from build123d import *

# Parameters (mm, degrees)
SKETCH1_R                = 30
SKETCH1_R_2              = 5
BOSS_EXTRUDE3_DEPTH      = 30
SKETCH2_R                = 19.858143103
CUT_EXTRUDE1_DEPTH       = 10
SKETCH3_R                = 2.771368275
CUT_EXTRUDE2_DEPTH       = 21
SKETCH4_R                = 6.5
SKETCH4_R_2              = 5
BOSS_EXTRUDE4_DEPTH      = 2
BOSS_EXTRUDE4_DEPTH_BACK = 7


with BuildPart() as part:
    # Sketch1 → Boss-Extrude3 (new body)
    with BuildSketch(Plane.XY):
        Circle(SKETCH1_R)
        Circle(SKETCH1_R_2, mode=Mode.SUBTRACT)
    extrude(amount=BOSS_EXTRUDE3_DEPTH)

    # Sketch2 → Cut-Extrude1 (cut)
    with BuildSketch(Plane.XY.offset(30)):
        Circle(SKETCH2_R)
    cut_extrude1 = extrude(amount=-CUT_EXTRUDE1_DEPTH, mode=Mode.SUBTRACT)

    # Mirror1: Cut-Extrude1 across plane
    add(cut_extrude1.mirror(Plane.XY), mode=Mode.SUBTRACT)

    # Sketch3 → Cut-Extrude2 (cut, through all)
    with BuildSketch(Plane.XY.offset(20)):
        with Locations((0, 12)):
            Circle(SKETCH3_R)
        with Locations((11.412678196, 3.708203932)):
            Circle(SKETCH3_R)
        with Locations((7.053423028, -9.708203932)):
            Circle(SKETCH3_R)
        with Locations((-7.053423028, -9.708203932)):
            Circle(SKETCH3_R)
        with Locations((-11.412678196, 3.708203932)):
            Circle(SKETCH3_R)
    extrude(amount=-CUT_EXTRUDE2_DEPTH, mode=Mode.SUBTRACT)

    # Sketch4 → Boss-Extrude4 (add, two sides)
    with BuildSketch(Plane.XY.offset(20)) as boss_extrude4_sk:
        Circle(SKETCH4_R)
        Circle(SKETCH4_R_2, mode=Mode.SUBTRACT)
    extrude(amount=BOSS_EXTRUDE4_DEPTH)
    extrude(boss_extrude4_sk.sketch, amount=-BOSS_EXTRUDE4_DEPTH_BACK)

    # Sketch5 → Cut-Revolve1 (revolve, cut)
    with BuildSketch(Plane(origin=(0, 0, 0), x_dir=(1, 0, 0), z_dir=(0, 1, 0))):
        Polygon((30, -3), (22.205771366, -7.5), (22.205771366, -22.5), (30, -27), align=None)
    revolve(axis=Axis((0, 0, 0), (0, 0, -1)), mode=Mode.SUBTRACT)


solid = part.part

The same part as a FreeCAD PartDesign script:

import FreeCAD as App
import Part
import Sketcher
Q = App.Units.Quantity

doc = App.newDocument("Part")
params = doc.addObject("Spreadsheet::Sheet", "Params")
for row, (alias, value) in enumerate([
    ("sketch1_diameter", "60 mm"),
    ("sketch1_diameter2", "10 mm"),
    ("pad1_length", "30 mm"),
    ("pocket1_length", "10 mm"),
    ("sketch4_diameter", "13 mm"),
    ("sketch4_diameter2", "10 mm"),
    ("pad2_length", "2 mm"),
    ("pad2_length2", "7 mm"),
    ("sketch5_height", "15 mm"),
    ("sketch5_height2", "24 mm"),
    ("groove_angle", "360 deg"),
], start=1):
    params.set(f"A{row}", alias)
    params.set(f"B{row}", "=" + value)
    params.setAlias(f"B{row}", alias)

body = doc.addObject("PartDesign::Body", "Body")

# Sketch on XY plane
sketch1 = body.newObject("Sketcher::SketchObject", "Sketch")
sketch1.AttachmentSupport = (doc.getObject("XY_Plane"), [""])
sketch1.MapMode = "FlatFace"
sketch1.addGeometry(Part.Circle(App.Vector(0, 0, 0), App.Vector(0, 0, 1), 30), False)
sketch1.addGeometry(Part.Circle(App.Vector(0, 0, 0), App.Vector(0, 0, 1), 5), False)
sketch1.addConstraint(Sketcher.Constraint("Coincident", 0, 3, -1, 1))
sketch1.addConstraint(Sketcher.Constraint("Coincident", 1, 3, -1, 1))
sketch1.addConstraint(Sketcher.Constraint("Diameter", 0, 60.0))
sketch1.addConstraint(Sketcher.Constraint("Diameter", 1, 10.0))
sketch1.setExpression("Constraints[2]", "Params.sketch1_diameter")
sketch1.setExpression("Constraints[3]", "Params.sketch1_diameter2")
pad1 = body.newObject("PartDesign::Pad", "Pad")
pad1.Profile = sketch1
pad1.setExpression("Length", "Params.pad1_length")

# Sketch on XY plane
sketch2 = body.newObject("Sketcher::SketchObject", "Sketch001")
sketch2.AttachmentSupport = (doc.getObject("XY_Plane"), [""])
sketch2.MapMode = "FlatFace"
sketch2.AttachmentOffset = App.Placement(App.Vector(0, 0, 30), App.Rotation())
sketch2.addGeometry(Part.Circle(App.Vector(0, 0, 0), App.Vector(0, 0, 1), 19.858143), False)
sketch2.addConstraint(Sketcher.Constraint("Coincident", 0, 3, -1, 1))
sketch2.addConstraint(Sketcher.Constraint("Diameter", 0, 39.716286))
pocket1 = body.newObject("PartDesign::Pocket", "Pocket")
pocket1.Profile = sketch2
pocket1.setExpression("Length", "Params.pocket1_length")
doc.recompute()

mirrored = body.newObject("PartDesign::Mirrored", "Mirrored")
mirrored.Originals = [pocket1]
mirrored.MirrorPlane = (doc.getObject("XY_Plane"), [""])
body.Tip = mirrored

# Sketch on XY plane
sketch3 = body.newObject("Sketcher::SketchObject", "Sketch002")
sketch3.AttachmentSupport = (doc.getObject("XY_Plane"), [""])
sketch3.MapMode = "FlatFace"
sketch3.AttachmentOffset = App.Placement(App.Vector(0, 0, 20), App.Rotation())
sketch3.addGeometry(Part.Circle(App.Vector(0, 12, 0), App.Vector(0, 0, 1), 2.771368), False)
sketch3.addGeometry(Part.Circle(App.Vector(11.412678, 3.708204, 0), App.Vector(0, 0, 1), 2.771368), False)
sketch3.addGeometry(Part.Circle(App.Vector(7.053423, -9.708204, 0), App.Vector(0, 0, 1), 2.771368), False)
sketch3.addGeometry(Part.Circle(App.Vector(-7.053423, -9.708204, 0), App.Vector(0, 0, 1), 2.771368), False)
sketch3.addGeometry(Part.Circle(App.Vector(-11.412678, 3.708204, 0), App.Vector(0, 0, 1), 2.771368), False)
sketch3.addConstraint(Sketcher.Constraint("Equal", 0, 1))
sketch3.addConstraint(Sketcher.Constraint("Equal", 1, 2))
sketch3.addConstraint(Sketcher.Constraint("Equal", 2, 3))
sketch3.addConstraint(Sketcher.Constraint("Equal", 3, 4))
sketch3.addConstraint(Sketcher.Constraint("Symmetric", 2, 3, 3, 3, -2))
sketch3.addConstraint(Sketcher.Constraint("Symmetric", 1, 3, 4, 3, -2))
sketch3.addConstraint(Sketcher.Constraint("PointOnObject", 0, 3, -2))
sketch3.addConstraint(Sketcher.Constraint("DistanceY", -1, 1, 0, 3, 12.0))
sketch3.addConstraint(Sketcher.Constraint("Diameter", 0, 5.542737))
sketch3.addConstraint(Sketcher.Constraint("DistanceX", 3, 3, 1, 3, 18.466101))
sketch3.addConstraint(Sketcher.Constraint("DistanceX", -1, 1, 1, 3, 11.412678))
sketch3.addConstraint(Sketcher.Constraint("DistanceY", -1, 1, 1, 3, 3.708204))
sketch3.addConstraint(Sketcher.Constraint("DistanceY", 2, 3, -1, 1, 9.708204))
pocket2 = body.newObject("PartDesign::Pocket", "Pocket001")
pocket2.Profile = sketch3
pocket2.Type = "ThroughAll"

# Sketch on XY plane
sketch4 = body.newObject("Sketcher::SketchObject", "Sketch003")
sketch4.AttachmentSupport = (doc.getObject("XY_Plane"), [""])
sketch4.MapMode = "FlatFace"
sketch4.AttachmentOffset = App.Placement(App.Vector(0, 0, 20), App.Rotation())
sketch4.addGeometry(Part.Circle(App.Vector(0, 0, 0), App.Vector(0, 0, 1), 6.5), False)
sketch4.addGeometry(Part.Circle(App.Vector(0, 0, 0), App.Vector(0, 0, 1), 5), False)
sketch4.addConstraint(Sketcher.Constraint("Coincident", 0, 3, -1, 1))
sketch4.addConstraint(Sketcher.Constraint("Coincident", 1, 3, -1, 1))
sketch4.addConstraint(Sketcher.Constraint("Diameter", 0, 13.0))
sketch4.addConstraint(Sketcher.Constraint("Diameter", 1, 10.0))
sketch4.setExpression("Constraints[2]", "Params.sketch4_diameter")
sketch4.setExpression("Constraints[3]", "Params.sketch4_diameter2")
pad2 = body.newObject("PartDesign::Pad", "Pad001")
pad2.Profile = sketch4
pad2.Type = "TwoLengths"
pad2.setExpression("Length", "Params.pad2_length")
pad2.setExpression("Length2", "Params.pad2_length2")

# Sketch on XZ plane
sketch5 = body.newObject("Sketcher::SketchObject", "Sketch004")
sketch5.AttachmentSupport = (doc.getObject("XZ_Plane"), [""])
sketch5.MapMode = "FlatFace"
sketch5.addGeometry(Part.LineSegment(App.Vector(30, 3, 0), App.Vector(22.205771, 7.5, 0)), False)
sketch5.addGeometry(Part.LineSegment(App.Vector(22.205771, 7.5, 0), App.Vector(22.205771, 22.5, 0)), False)
sketch5.addGeometry(Part.LineSegment(App.Vector(22.205771, 22.5, 0), App.Vector(30, 27, 0)), False)
sketch5.addGeometry(Part.LineSegment(App.Vector(30, 27, 0), App.Vector(30, 3, 0)), False)
sketch5.addConstraint(Sketcher.Constraint("Coincident", 0, 2, 1, 1))
sketch5.addConstraint(Sketcher.Constraint("Coincident", 1, 2, 2, 1))
sketch5.addConstraint(Sketcher.Constraint("Coincident", 2, 2, 3, 1))
sketch5.addConstraint(Sketcher.Constraint("Coincident", 3, 2, 0, 1))
sketch5.addConstraint(Sketcher.Constraint("Vertical", 1))
sketch5.addConstraint(Sketcher.Constraint("Vertical", 3))
sketch5.addConstraint(Sketcher.Constraint("Equal", 0, 2))
sketch5.addConstraint(Sketcher.Constraint("DistanceY", 1, 1, 1, 2, 15.0))
sketch5.addConstraint(Sketcher.Constraint("DistanceY", 3, 2, 3, 1, 24.0))
sketch5.addConstraint(Sketcher.Constraint("Angle", 0, Q("150 deg")))
sketch5.addConstraint(Sketcher.Constraint("DistanceX", -1, 1, 2, 2, 30.0))
sketch5.addConstraint(Sketcher.Constraint("DistanceY", -1, 1, 2, 2, 27.0))
sketch5.setExpression("Constraints[7]", "Params.sketch5_height")
sketch5.setExpression("Constraints[8]", "Params.sketch5_height2")
groove = body.newObject("PartDesign::Groove", "Groove")
groove.Profile = sketch5
groove.ReferenceAxis = (sketch5, ["V_Axis"])
groove.setExpression("Angle", "Params.groove_angle")

doc.recompute()
